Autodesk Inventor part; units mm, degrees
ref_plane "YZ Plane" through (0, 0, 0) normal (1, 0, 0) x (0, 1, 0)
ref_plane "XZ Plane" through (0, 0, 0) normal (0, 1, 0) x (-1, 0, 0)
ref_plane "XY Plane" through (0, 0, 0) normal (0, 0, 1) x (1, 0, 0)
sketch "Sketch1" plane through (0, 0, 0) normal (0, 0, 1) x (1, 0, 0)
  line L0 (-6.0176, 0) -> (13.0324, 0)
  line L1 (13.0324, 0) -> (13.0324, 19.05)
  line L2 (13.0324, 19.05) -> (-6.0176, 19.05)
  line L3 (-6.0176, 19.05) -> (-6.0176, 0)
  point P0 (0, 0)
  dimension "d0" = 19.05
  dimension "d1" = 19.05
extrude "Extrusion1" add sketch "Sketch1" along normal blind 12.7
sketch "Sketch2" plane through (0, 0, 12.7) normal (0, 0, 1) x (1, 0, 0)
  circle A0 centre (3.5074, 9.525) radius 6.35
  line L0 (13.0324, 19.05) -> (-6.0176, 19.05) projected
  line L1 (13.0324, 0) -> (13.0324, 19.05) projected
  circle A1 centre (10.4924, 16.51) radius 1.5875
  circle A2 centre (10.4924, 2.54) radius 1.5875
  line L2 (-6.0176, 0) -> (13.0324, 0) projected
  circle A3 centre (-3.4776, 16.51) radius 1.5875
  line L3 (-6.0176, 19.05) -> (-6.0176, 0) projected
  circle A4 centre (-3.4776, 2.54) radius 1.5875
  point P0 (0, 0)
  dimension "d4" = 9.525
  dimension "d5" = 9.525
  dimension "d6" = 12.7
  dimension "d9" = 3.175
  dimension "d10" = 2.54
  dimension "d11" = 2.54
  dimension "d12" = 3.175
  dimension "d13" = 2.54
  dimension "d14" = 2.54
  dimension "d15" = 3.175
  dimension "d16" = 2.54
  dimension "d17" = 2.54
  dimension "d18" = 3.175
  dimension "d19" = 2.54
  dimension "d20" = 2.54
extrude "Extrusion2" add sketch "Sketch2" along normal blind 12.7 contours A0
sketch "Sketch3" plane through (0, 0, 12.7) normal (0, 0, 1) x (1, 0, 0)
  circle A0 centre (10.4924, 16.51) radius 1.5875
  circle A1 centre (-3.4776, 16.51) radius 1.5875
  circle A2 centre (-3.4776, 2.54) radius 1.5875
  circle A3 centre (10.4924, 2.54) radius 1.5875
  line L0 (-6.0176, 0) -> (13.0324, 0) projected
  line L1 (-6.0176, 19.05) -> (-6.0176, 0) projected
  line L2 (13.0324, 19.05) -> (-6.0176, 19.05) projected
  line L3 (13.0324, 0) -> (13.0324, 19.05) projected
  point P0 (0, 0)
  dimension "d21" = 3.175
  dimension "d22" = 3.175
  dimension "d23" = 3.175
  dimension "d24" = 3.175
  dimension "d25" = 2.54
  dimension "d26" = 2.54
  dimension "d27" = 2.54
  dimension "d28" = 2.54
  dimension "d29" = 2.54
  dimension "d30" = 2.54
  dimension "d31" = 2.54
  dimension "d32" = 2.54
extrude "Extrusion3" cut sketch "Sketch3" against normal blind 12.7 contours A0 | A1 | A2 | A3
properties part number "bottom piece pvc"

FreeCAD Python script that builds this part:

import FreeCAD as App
import Part
import Sketcher

V = App.Vector
Q = App.Units.Quantity

doc = App.newDocument("Part")
body = doc.addObject("PartDesign::Body", "Body")

# Sketch on XY plane
sketch1 = body.newObject("Sketcher::SketchObject", "Sketch")
sketch1.AttachmentSupport = (doc.getObject("XY_Plane"), [""])
sketch1.MapMode = "FlatFace"
sketch1.addGeometry(Part.LineSegment(V(-6.0176, 19.05, 0), V(-6.0176, 0, 0)), False)
sketch1.addGeometry(Part.LineSegment(V(-6.0176, 0, 0), V(13.0324, 0, 0)), False)
sketch1.addGeometry(Part.LineSegment(V(13.0324, 0, 0), V(13.0324, 19.05, 0)), False)
sketch1.addGeometry(Part.LineSegment(V(13.0324, 19.05, 0), V(-6.0176, 19.05, 0)), False)
sketch1.addConstraint(Sketcher.Constraint("Coincident", 0, 2, 1, 1))
sketch1.addConstraint(Sketcher.Constraint("Coincident", 1, 2, 2, 1))
sketch1.addConstraint(Sketcher.Constraint("Coincident", 2, 2, 3, 1))
sketch1.addConstraint(Sketcher.Constraint("Coincident", 3, 2, 0, 1))
sketch1.addConstraint(Sketcher.Constraint("Vertical", 0))
sketch1.addConstraint(Sketcher.Constraint("Horizontal", 1))
sketch1.addConstraint(Sketcher.Constraint("Vertical", 2))
sketch1.addConstraint(Sketcher.Constraint("Horizontal", 3))
sketch1.addConstraint(Sketcher.Constraint("PointOnObject", 0, 2, -1))
sketch1.addConstraint(Sketcher.Constraint("Equal", 3, 0))
sketch1.addConstraint(Sketcher.Constraint("DistanceX", 1, 1, 1, 2, Q("0.75 in")))
sketch1.addConstraint(Sketcher.Constraint("DistanceX", 0, 2, -1, 1, Q("6.0176 mm")))
pad1 = body.newObject("PartDesign::Pad", "Pad")
pad1.Profile = sketch1
pad1.Length = Q("0.5 in")

# Sketch on XY plane
sketch2 = body.newObject("Sketcher::SketchObject", "Sketch001")
sketch2.AttachmentSupport = (doc.getObject("XY_Plane"), [""])
sketch2.MapMode = "FlatFace"
sketch2.AttachmentOffset = App.Placement(V(0, 0, 0.5 * 25.4), App.Rotation())
sketch2.addGeometry(Part.Circle(V(3.5074, 9.525, 0), V(0, 0, 1), 6.35), False)
sketch2.addConstraint(Sketcher.Constraint("Diameter", 0, Q("0.5 in")))
sketch2.addConstraint(Sketcher.Constraint("DistanceY", -1, 1, 0, 3, Q("0.375 in")))
sketch2.addConstraint(Sketcher.Constraint("DistanceX", -1, 1, 0, 3, Q("3.5074 mm")))
pad2 = body.newObject("PartDesign::Pad", "Pad001")
pad2.Profile = sketch2
pad2.Length = Q("0.5 in")

# Sketch on XY plane
sketch3 = body.newObject("Sketcher::SketchObject", "Sketch002")
sketch3.AttachmentSupport = (doc.getObject("XY_Plane"), [""])
sketch3.MapMode = "FlatFace"
sketch3.AttachmentOffset = App.Placement(V(0, 0, 0.5 * 25.4), App.Rotation())
sketch3.addGeometry(Part.Circle(V(10.4924, 16.51, 0), V(0, 0, 1), 1.5875), False)
sketch3.addGeometry(Part.Circle(V(-3.4776, 16.51, 0), V(0, 0, 1), 1.5875), False)
sketch3.addGeometry(Part.Circle(V(-3.4776, 2.54, 0), V(0, 0, 1), 1.5875), False)
sketch3.addGeometry(Part.Circle(V(10.4924, 2.54, 0), V(0, 0, 1), 1.5875), False)
sketch3.addConstraint(Sketcher.Constraint("Equal", 0, 1))
sketch3.addConstraint(Sketcher.Constraint("Equal", 1, 2))
sketch3.addConstraint(Sketcher.Constraint("Equal", 2, 3))
sketch3.addConstraint(Sketcher.Constraint("Horizontal", 0, 3, 1, 3))
sketch3.addConstraint(Sketcher.Constraint("Horizontal", 2, 3, 3, 3))
sketch3.addConstraint(Sketcher.Constraint("Vertical", 1, 3, 2, 3))
sketch3.addConstraint(Sketcher.Constraint("Vertical", 0, 3, 3, 3))
sketch3.addConstraint(Sketcher.Constraint("Diameter", 0, Q("0.125 in")))
sketch3.addConstraint(Sketcher.Constraint("DistanceY", -1, 1, 2, 3, Q("0.1 in")))
sketch3.addConstraint(Sketcher.Constraint("DistanceY", -1, 1, 0, 3, Q("0.65 in")))
sketch3.addConstraint(Sketcher.Constraint("DistanceX", 1, 3, 0, 3, Q("0.55 in")))
sketch3.addConstraint(Sketcher.Constraint("DistanceX", -1, 1, 0, 3, Q("10.4924 mm")))
pocket1 = body.newObject("PartDesign::Pocket", "Pocket")
pocket1.Profile = sketch3
pocket1.Length = Q("0.5 in")

doc.recompute()
